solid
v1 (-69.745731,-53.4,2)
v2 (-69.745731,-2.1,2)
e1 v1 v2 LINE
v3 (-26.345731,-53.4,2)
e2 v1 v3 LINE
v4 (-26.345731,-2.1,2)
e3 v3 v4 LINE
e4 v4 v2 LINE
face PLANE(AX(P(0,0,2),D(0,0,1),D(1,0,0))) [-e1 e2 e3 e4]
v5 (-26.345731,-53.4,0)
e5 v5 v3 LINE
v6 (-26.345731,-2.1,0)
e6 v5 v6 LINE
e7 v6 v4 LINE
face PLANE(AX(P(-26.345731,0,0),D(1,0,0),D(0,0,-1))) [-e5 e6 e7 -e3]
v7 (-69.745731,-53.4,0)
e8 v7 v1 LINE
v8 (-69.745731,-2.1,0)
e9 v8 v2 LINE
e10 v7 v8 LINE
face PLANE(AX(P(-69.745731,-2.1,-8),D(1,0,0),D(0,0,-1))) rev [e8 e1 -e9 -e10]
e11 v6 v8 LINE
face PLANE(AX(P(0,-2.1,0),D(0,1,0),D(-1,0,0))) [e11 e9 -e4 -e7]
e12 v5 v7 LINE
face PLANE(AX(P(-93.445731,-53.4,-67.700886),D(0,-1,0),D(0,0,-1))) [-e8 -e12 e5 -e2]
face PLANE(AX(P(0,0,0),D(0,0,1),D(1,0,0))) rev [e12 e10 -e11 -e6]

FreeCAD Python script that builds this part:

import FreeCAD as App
import Part
import Sketcher
from FreeCAD import Vector


def add_polygon(sketch, points):
    """Adds a closed chain of lines whose ends are joined by coincident constraints."""
    first, n = sketch.GeometryCount, len(points)
    for a, b in zip(points, points[1:] + points[:1]):
        sketch.addGeometry(Part.LineSegment(App.Vector(*a, 0), App.Vector(*b, 0)), False)
    for i in range(n):
        sketch.addConstraint(Sketcher.Constraint("Coincident", first + i, 2, first + (i + 1) % n, 1))

doc = App.newDocument("Part")
body = doc.addObject("PartDesign::Body", "Body")

sketch1 = doc.addObject("Sketcher::SketchObject", "Sketch")
body.addObject(sketch1)
sketch1.AttachmentSupport = (doc.XY_Plane, [""])
sketch1.MapMode = "FlatFace"
add_polygon(sketch1, [(-88.945731, -6.4), (-88.945731, -1.9), (-93.645731, -1.9), (-93.645731, -44.6), (-26.145731, -44.6), (-26.145731, -1.9), (-70.145731, -1.9), (-70.145731, -6.4)])
sketch1.addConstraint([
    Sketcher.Constraint("Vertical", 0),
    Sketcher.Constraint("Horizontal", 1),
    Sketcher.Constraint("Vertical", 2),
    Sketcher.Constraint("Horizontal", 3),
    Sketcher.Constraint("Vertical", 4),
    Sketcher.Constraint("Horizontal", 5),
    Sketcher.Constraint("Vertical", 6),
    Sketcher.Constraint("Horizontal", 7),
    Sketcher.Constraint("Horizontal", 1, 2, 4, 2),
    Sketcher.Constraint("DistanceX", 5, 2, 5, 1, 44.0),
    Sketcher.Constraint("DistanceX", 1, 2, 1, 1, 4.7),
    Sketcher.Constraint("DistanceX", 3, 1, 3, 2, 67.5),
    Sketcher.Constraint("DistanceY", 0, 1, 0, 2, 4.5),
    Sketcher.Constraint("DistanceY", 2, 2, 2, 1, 42.7),
    Sketcher.Constraint("DistanceY", 0, 2, -1, 1, 1.9),
    Sketcher.Constraint("DistanceX", 0, 2, -1, 1, 88.945731),
])
pad1 = doc.addObject("PartDesign::Pad", "Pad")
body.addObject(pad1)
pad1.Profile = sketch1
pad1.Length = 2

sketch2 = doc.addObject("Sketcher::SketchObject", "Sketch001")
body.addObject(sketch2)
sketch2.AttachmentSupport = (doc.XY_Plane, [""])
sketch2.MapMode = "FlatFace"
sketch2.AttachmentOffset = App.Placement(Vector(0, 0, 2), App.Rotation())
add_polygon(sketch2, [(-88.945731, -1.9), (-93.645731, -1.9), (-93.645731, -44.6), (-26.145731, -44.6), (-26.145731, -1.9), (-70.145731, -1.9), (-70.145731, -6.4), (-88.945731, -6.4)])
add_polygon(sketch2, [(-93.445731, -2.1), (-89.145731, -2.1), (-89.145731, -6.6), (-69.945731, -6.6), (-69.945731, -2.1), (-26.345731, -2.1), (-26.345731, -44.4), (-93.445731, -44.4)])
sketch2.addConstraint([
    Sketcher.Constraint("Horizontal", 0),
    Sketcher.Constraint("Vertical", 1),
    Sketcher.Constraint("Horizontal", 2),
    Sketcher.Constraint("Vertical", 3),
    Sketcher.Constraint("Horizontal", 4),
    Sketcher.Constraint("Vertical", 5),
    Sketcher.Constraint("Horizontal", 6),
    Sketcher.Constraint("Vertical", 7),
    Sketcher.Constraint("Horizontal", 8),
    Sketcher.Constraint("Vertical", 9),
    Sketcher.Constraint("Horizontal", 10),
    Sketcher.Constraint("Vertical", 11),
    Sketcher.Constraint("Horizontal", 12),
    Sketcher.Constraint("Vertical", 13),
    Sketcher.Constraint("Horizontal", 14),
    Sketcher.Constraint("Vertical", 15),
    Sketcher.Constraint("Horizontal", 0, 2, 3, 2),
    Sketcher.Constraint("Horizontal", 8, 2, 11, 2),
    Sketcher.Constraint("Equal", 7, 9),
    Sketcher.Constraint("DistanceX", 4, 2, 4, 1, 44.0),
    Sketcher.Constraint("DistanceX", 0, 2, 0, 1, 4.7),
    Sketcher.Constraint("DistanceX", 2, 1, 2, 2, 67.5),
    Sketcher.Constraint("DistanceX", 8, 1, 8, 2, 4.3),
    Sketcher.Constraint("DistanceX", 10, 1, 10, 2, 19.2),
    Sketcher.Constraint("DistanceX", 12, 1, 12, 2, 43.6),
    Sketcher.Constraint("DistanceY", 1, 2, 1, 1, 42.7),
    Sketcher.Constraint("DistanceY", 5, 2, 5, 1, 4.5),
    Sketcher.Constraint("DistanceY", 13, 2, 13, 1, 42.3),
    Sketcher.Constraint("DistanceX", 8, 2, 4, 2, 19.0),
    Sketcher.Constraint("DistanceY", 13, 2, 5, 2, 38.0),
    Sketcher.Constraint("DistanceY", 0, 2, -1, 1, 1.9),
    Sketcher.Constraint("DistanceX", 0, 2, -1, 1, 93.645731),
])
pocket1 = doc.addObject("PartDesign::Pocket", "Pocket")
body.addObject(pocket1)
pocket1.Profile = sketch2
pocket1.Type = "ThroughAll"

sketch3 = doc.addObject("Sketcher::SketchObject", "Sketch002")
body.addObject(sketch3)
sketch3.AttachmentSupport = (doc.XY_Plane, [""])
sketch3.MapMode = "FlatFace"
sketch3.AttachmentOffset = App.Placement(Vector(0, 0, 2), App.Rotation())
add_polygon(sketch3, [(-93.445731, -44.4), (-93.445731, -53.4), (-26.345731, -53.4), (-26.345731, -44.4)])
sketch3.addConstraint([
    Sketcher.Constraint("Vertical", 0),
    Sketcher.Constraint("Horizontal", 1),
    Sketcher.Constraint("Vertical", 2),
    Sketcher.Constraint("Horizontal", 3),
    Sketcher.Constraint("DistanceY", 0, 2, 0, 1, 9.0),
    Sketcher.Constraint("DistanceX", 1, 1, 1, 2, 67.1),
    Sketcher.Constraint("DistanceY", 0, 2, -1, 1, 53.4),
    Sketcher.Constraint("DistanceX", 0, 2, -1, 1, 93.445731),
])
pad2 = doc.addObject("PartDesign::Pad", "Pad001")
body.addObject(pad2)
pad2.Profile = sketch3
pad2.Length = 2
pad2.Reversed = True

sketch4 = doc.addObject("Sketcher::SketchObject", "Sketch003")
body.addObject(sketch4)
sketch4.AttachmentSupport = (doc.XY_Plane, [""])
sketch4.MapMode = "FlatFace"
sketch4.AttachmentOffset = App.Placement(Vector(0, 0, 2), App.Rotation())
add_polygon(sketch4, [(-93.445731, -2.1), (-93.445731, -53.4), (-69.945731, -53.4), (-69.945731, -2.1)])
sketch4.addConstraint([
    Sketcher.Constraint("Vertical", 0),
    Sketcher.Constraint("Horizontal", 1),
    Sketcher.Constraint("Vertical", 2),
    Sketcher.Constraint("Horizontal", 3),
    Sketcher.Constraint("DistanceX", 1, 1, 1, 2, 23.5),
    Sketcher.Constraint("DistanceY", 0, 2, 0, 1, 51.3),
    Sketcher.Constraint("DistanceY", 0, 2, -1, 1, 53.4),
    Sketcher.Constraint("DistanceX", 0, 2, -1, 1, 93.445731),
])
pocket2 = doc.addObject("PartDesign::Pocket", "Pocket001")
body.addObject(pocket2)
pocket2.Profile = sketch4
pocket2.Length = 10

sketch5 = doc.addObject("Sketcher::SketchObject", "Sketch004")
body.addObject(sketch5)
sketch5.AttachmentSupport = (doc.XY_Plane, [""])
sketch5.MapMode = "FlatFace"
sketch5.AttachmentOffset = App.Placement(Vector(0, 0, 2), App.Rotation())
add_polygon(sketch5, [(-69.945731, -2.1), (-69.945731, -53.4), (-69.745731, -53.4), (-69.745731, -2.1)])
sketch5.addConstraint([
    Sketcher.Constraint("Vertical", 0),
    Sketcher.Constraint("Horizontal", 1),
    Sketcher.Constraint("Vertical", 2),
    Sketcher.Constraint("Horizontal", 3),
    Sketcher.Constraint("DistanceX", 1, 1, 1, 2, 0.2),
    Sketcher.Constraint("DistanceY", 0, 2, 0, 1, 51.3),
    Sketcher.Constraint("DistanceY", 0, 2, -1, 1, 53.4),
    Sketcher.Constraint("DistanceX", 0, 2, -1, 1, 69.945731),
])
pocket3 = doc.addObject("PartDesign::Pocket", "Pocket002")
body.addObject(pocket3)
pocket3.Profile = sketch5
pocket3.Length = 10

doc.recompute()
